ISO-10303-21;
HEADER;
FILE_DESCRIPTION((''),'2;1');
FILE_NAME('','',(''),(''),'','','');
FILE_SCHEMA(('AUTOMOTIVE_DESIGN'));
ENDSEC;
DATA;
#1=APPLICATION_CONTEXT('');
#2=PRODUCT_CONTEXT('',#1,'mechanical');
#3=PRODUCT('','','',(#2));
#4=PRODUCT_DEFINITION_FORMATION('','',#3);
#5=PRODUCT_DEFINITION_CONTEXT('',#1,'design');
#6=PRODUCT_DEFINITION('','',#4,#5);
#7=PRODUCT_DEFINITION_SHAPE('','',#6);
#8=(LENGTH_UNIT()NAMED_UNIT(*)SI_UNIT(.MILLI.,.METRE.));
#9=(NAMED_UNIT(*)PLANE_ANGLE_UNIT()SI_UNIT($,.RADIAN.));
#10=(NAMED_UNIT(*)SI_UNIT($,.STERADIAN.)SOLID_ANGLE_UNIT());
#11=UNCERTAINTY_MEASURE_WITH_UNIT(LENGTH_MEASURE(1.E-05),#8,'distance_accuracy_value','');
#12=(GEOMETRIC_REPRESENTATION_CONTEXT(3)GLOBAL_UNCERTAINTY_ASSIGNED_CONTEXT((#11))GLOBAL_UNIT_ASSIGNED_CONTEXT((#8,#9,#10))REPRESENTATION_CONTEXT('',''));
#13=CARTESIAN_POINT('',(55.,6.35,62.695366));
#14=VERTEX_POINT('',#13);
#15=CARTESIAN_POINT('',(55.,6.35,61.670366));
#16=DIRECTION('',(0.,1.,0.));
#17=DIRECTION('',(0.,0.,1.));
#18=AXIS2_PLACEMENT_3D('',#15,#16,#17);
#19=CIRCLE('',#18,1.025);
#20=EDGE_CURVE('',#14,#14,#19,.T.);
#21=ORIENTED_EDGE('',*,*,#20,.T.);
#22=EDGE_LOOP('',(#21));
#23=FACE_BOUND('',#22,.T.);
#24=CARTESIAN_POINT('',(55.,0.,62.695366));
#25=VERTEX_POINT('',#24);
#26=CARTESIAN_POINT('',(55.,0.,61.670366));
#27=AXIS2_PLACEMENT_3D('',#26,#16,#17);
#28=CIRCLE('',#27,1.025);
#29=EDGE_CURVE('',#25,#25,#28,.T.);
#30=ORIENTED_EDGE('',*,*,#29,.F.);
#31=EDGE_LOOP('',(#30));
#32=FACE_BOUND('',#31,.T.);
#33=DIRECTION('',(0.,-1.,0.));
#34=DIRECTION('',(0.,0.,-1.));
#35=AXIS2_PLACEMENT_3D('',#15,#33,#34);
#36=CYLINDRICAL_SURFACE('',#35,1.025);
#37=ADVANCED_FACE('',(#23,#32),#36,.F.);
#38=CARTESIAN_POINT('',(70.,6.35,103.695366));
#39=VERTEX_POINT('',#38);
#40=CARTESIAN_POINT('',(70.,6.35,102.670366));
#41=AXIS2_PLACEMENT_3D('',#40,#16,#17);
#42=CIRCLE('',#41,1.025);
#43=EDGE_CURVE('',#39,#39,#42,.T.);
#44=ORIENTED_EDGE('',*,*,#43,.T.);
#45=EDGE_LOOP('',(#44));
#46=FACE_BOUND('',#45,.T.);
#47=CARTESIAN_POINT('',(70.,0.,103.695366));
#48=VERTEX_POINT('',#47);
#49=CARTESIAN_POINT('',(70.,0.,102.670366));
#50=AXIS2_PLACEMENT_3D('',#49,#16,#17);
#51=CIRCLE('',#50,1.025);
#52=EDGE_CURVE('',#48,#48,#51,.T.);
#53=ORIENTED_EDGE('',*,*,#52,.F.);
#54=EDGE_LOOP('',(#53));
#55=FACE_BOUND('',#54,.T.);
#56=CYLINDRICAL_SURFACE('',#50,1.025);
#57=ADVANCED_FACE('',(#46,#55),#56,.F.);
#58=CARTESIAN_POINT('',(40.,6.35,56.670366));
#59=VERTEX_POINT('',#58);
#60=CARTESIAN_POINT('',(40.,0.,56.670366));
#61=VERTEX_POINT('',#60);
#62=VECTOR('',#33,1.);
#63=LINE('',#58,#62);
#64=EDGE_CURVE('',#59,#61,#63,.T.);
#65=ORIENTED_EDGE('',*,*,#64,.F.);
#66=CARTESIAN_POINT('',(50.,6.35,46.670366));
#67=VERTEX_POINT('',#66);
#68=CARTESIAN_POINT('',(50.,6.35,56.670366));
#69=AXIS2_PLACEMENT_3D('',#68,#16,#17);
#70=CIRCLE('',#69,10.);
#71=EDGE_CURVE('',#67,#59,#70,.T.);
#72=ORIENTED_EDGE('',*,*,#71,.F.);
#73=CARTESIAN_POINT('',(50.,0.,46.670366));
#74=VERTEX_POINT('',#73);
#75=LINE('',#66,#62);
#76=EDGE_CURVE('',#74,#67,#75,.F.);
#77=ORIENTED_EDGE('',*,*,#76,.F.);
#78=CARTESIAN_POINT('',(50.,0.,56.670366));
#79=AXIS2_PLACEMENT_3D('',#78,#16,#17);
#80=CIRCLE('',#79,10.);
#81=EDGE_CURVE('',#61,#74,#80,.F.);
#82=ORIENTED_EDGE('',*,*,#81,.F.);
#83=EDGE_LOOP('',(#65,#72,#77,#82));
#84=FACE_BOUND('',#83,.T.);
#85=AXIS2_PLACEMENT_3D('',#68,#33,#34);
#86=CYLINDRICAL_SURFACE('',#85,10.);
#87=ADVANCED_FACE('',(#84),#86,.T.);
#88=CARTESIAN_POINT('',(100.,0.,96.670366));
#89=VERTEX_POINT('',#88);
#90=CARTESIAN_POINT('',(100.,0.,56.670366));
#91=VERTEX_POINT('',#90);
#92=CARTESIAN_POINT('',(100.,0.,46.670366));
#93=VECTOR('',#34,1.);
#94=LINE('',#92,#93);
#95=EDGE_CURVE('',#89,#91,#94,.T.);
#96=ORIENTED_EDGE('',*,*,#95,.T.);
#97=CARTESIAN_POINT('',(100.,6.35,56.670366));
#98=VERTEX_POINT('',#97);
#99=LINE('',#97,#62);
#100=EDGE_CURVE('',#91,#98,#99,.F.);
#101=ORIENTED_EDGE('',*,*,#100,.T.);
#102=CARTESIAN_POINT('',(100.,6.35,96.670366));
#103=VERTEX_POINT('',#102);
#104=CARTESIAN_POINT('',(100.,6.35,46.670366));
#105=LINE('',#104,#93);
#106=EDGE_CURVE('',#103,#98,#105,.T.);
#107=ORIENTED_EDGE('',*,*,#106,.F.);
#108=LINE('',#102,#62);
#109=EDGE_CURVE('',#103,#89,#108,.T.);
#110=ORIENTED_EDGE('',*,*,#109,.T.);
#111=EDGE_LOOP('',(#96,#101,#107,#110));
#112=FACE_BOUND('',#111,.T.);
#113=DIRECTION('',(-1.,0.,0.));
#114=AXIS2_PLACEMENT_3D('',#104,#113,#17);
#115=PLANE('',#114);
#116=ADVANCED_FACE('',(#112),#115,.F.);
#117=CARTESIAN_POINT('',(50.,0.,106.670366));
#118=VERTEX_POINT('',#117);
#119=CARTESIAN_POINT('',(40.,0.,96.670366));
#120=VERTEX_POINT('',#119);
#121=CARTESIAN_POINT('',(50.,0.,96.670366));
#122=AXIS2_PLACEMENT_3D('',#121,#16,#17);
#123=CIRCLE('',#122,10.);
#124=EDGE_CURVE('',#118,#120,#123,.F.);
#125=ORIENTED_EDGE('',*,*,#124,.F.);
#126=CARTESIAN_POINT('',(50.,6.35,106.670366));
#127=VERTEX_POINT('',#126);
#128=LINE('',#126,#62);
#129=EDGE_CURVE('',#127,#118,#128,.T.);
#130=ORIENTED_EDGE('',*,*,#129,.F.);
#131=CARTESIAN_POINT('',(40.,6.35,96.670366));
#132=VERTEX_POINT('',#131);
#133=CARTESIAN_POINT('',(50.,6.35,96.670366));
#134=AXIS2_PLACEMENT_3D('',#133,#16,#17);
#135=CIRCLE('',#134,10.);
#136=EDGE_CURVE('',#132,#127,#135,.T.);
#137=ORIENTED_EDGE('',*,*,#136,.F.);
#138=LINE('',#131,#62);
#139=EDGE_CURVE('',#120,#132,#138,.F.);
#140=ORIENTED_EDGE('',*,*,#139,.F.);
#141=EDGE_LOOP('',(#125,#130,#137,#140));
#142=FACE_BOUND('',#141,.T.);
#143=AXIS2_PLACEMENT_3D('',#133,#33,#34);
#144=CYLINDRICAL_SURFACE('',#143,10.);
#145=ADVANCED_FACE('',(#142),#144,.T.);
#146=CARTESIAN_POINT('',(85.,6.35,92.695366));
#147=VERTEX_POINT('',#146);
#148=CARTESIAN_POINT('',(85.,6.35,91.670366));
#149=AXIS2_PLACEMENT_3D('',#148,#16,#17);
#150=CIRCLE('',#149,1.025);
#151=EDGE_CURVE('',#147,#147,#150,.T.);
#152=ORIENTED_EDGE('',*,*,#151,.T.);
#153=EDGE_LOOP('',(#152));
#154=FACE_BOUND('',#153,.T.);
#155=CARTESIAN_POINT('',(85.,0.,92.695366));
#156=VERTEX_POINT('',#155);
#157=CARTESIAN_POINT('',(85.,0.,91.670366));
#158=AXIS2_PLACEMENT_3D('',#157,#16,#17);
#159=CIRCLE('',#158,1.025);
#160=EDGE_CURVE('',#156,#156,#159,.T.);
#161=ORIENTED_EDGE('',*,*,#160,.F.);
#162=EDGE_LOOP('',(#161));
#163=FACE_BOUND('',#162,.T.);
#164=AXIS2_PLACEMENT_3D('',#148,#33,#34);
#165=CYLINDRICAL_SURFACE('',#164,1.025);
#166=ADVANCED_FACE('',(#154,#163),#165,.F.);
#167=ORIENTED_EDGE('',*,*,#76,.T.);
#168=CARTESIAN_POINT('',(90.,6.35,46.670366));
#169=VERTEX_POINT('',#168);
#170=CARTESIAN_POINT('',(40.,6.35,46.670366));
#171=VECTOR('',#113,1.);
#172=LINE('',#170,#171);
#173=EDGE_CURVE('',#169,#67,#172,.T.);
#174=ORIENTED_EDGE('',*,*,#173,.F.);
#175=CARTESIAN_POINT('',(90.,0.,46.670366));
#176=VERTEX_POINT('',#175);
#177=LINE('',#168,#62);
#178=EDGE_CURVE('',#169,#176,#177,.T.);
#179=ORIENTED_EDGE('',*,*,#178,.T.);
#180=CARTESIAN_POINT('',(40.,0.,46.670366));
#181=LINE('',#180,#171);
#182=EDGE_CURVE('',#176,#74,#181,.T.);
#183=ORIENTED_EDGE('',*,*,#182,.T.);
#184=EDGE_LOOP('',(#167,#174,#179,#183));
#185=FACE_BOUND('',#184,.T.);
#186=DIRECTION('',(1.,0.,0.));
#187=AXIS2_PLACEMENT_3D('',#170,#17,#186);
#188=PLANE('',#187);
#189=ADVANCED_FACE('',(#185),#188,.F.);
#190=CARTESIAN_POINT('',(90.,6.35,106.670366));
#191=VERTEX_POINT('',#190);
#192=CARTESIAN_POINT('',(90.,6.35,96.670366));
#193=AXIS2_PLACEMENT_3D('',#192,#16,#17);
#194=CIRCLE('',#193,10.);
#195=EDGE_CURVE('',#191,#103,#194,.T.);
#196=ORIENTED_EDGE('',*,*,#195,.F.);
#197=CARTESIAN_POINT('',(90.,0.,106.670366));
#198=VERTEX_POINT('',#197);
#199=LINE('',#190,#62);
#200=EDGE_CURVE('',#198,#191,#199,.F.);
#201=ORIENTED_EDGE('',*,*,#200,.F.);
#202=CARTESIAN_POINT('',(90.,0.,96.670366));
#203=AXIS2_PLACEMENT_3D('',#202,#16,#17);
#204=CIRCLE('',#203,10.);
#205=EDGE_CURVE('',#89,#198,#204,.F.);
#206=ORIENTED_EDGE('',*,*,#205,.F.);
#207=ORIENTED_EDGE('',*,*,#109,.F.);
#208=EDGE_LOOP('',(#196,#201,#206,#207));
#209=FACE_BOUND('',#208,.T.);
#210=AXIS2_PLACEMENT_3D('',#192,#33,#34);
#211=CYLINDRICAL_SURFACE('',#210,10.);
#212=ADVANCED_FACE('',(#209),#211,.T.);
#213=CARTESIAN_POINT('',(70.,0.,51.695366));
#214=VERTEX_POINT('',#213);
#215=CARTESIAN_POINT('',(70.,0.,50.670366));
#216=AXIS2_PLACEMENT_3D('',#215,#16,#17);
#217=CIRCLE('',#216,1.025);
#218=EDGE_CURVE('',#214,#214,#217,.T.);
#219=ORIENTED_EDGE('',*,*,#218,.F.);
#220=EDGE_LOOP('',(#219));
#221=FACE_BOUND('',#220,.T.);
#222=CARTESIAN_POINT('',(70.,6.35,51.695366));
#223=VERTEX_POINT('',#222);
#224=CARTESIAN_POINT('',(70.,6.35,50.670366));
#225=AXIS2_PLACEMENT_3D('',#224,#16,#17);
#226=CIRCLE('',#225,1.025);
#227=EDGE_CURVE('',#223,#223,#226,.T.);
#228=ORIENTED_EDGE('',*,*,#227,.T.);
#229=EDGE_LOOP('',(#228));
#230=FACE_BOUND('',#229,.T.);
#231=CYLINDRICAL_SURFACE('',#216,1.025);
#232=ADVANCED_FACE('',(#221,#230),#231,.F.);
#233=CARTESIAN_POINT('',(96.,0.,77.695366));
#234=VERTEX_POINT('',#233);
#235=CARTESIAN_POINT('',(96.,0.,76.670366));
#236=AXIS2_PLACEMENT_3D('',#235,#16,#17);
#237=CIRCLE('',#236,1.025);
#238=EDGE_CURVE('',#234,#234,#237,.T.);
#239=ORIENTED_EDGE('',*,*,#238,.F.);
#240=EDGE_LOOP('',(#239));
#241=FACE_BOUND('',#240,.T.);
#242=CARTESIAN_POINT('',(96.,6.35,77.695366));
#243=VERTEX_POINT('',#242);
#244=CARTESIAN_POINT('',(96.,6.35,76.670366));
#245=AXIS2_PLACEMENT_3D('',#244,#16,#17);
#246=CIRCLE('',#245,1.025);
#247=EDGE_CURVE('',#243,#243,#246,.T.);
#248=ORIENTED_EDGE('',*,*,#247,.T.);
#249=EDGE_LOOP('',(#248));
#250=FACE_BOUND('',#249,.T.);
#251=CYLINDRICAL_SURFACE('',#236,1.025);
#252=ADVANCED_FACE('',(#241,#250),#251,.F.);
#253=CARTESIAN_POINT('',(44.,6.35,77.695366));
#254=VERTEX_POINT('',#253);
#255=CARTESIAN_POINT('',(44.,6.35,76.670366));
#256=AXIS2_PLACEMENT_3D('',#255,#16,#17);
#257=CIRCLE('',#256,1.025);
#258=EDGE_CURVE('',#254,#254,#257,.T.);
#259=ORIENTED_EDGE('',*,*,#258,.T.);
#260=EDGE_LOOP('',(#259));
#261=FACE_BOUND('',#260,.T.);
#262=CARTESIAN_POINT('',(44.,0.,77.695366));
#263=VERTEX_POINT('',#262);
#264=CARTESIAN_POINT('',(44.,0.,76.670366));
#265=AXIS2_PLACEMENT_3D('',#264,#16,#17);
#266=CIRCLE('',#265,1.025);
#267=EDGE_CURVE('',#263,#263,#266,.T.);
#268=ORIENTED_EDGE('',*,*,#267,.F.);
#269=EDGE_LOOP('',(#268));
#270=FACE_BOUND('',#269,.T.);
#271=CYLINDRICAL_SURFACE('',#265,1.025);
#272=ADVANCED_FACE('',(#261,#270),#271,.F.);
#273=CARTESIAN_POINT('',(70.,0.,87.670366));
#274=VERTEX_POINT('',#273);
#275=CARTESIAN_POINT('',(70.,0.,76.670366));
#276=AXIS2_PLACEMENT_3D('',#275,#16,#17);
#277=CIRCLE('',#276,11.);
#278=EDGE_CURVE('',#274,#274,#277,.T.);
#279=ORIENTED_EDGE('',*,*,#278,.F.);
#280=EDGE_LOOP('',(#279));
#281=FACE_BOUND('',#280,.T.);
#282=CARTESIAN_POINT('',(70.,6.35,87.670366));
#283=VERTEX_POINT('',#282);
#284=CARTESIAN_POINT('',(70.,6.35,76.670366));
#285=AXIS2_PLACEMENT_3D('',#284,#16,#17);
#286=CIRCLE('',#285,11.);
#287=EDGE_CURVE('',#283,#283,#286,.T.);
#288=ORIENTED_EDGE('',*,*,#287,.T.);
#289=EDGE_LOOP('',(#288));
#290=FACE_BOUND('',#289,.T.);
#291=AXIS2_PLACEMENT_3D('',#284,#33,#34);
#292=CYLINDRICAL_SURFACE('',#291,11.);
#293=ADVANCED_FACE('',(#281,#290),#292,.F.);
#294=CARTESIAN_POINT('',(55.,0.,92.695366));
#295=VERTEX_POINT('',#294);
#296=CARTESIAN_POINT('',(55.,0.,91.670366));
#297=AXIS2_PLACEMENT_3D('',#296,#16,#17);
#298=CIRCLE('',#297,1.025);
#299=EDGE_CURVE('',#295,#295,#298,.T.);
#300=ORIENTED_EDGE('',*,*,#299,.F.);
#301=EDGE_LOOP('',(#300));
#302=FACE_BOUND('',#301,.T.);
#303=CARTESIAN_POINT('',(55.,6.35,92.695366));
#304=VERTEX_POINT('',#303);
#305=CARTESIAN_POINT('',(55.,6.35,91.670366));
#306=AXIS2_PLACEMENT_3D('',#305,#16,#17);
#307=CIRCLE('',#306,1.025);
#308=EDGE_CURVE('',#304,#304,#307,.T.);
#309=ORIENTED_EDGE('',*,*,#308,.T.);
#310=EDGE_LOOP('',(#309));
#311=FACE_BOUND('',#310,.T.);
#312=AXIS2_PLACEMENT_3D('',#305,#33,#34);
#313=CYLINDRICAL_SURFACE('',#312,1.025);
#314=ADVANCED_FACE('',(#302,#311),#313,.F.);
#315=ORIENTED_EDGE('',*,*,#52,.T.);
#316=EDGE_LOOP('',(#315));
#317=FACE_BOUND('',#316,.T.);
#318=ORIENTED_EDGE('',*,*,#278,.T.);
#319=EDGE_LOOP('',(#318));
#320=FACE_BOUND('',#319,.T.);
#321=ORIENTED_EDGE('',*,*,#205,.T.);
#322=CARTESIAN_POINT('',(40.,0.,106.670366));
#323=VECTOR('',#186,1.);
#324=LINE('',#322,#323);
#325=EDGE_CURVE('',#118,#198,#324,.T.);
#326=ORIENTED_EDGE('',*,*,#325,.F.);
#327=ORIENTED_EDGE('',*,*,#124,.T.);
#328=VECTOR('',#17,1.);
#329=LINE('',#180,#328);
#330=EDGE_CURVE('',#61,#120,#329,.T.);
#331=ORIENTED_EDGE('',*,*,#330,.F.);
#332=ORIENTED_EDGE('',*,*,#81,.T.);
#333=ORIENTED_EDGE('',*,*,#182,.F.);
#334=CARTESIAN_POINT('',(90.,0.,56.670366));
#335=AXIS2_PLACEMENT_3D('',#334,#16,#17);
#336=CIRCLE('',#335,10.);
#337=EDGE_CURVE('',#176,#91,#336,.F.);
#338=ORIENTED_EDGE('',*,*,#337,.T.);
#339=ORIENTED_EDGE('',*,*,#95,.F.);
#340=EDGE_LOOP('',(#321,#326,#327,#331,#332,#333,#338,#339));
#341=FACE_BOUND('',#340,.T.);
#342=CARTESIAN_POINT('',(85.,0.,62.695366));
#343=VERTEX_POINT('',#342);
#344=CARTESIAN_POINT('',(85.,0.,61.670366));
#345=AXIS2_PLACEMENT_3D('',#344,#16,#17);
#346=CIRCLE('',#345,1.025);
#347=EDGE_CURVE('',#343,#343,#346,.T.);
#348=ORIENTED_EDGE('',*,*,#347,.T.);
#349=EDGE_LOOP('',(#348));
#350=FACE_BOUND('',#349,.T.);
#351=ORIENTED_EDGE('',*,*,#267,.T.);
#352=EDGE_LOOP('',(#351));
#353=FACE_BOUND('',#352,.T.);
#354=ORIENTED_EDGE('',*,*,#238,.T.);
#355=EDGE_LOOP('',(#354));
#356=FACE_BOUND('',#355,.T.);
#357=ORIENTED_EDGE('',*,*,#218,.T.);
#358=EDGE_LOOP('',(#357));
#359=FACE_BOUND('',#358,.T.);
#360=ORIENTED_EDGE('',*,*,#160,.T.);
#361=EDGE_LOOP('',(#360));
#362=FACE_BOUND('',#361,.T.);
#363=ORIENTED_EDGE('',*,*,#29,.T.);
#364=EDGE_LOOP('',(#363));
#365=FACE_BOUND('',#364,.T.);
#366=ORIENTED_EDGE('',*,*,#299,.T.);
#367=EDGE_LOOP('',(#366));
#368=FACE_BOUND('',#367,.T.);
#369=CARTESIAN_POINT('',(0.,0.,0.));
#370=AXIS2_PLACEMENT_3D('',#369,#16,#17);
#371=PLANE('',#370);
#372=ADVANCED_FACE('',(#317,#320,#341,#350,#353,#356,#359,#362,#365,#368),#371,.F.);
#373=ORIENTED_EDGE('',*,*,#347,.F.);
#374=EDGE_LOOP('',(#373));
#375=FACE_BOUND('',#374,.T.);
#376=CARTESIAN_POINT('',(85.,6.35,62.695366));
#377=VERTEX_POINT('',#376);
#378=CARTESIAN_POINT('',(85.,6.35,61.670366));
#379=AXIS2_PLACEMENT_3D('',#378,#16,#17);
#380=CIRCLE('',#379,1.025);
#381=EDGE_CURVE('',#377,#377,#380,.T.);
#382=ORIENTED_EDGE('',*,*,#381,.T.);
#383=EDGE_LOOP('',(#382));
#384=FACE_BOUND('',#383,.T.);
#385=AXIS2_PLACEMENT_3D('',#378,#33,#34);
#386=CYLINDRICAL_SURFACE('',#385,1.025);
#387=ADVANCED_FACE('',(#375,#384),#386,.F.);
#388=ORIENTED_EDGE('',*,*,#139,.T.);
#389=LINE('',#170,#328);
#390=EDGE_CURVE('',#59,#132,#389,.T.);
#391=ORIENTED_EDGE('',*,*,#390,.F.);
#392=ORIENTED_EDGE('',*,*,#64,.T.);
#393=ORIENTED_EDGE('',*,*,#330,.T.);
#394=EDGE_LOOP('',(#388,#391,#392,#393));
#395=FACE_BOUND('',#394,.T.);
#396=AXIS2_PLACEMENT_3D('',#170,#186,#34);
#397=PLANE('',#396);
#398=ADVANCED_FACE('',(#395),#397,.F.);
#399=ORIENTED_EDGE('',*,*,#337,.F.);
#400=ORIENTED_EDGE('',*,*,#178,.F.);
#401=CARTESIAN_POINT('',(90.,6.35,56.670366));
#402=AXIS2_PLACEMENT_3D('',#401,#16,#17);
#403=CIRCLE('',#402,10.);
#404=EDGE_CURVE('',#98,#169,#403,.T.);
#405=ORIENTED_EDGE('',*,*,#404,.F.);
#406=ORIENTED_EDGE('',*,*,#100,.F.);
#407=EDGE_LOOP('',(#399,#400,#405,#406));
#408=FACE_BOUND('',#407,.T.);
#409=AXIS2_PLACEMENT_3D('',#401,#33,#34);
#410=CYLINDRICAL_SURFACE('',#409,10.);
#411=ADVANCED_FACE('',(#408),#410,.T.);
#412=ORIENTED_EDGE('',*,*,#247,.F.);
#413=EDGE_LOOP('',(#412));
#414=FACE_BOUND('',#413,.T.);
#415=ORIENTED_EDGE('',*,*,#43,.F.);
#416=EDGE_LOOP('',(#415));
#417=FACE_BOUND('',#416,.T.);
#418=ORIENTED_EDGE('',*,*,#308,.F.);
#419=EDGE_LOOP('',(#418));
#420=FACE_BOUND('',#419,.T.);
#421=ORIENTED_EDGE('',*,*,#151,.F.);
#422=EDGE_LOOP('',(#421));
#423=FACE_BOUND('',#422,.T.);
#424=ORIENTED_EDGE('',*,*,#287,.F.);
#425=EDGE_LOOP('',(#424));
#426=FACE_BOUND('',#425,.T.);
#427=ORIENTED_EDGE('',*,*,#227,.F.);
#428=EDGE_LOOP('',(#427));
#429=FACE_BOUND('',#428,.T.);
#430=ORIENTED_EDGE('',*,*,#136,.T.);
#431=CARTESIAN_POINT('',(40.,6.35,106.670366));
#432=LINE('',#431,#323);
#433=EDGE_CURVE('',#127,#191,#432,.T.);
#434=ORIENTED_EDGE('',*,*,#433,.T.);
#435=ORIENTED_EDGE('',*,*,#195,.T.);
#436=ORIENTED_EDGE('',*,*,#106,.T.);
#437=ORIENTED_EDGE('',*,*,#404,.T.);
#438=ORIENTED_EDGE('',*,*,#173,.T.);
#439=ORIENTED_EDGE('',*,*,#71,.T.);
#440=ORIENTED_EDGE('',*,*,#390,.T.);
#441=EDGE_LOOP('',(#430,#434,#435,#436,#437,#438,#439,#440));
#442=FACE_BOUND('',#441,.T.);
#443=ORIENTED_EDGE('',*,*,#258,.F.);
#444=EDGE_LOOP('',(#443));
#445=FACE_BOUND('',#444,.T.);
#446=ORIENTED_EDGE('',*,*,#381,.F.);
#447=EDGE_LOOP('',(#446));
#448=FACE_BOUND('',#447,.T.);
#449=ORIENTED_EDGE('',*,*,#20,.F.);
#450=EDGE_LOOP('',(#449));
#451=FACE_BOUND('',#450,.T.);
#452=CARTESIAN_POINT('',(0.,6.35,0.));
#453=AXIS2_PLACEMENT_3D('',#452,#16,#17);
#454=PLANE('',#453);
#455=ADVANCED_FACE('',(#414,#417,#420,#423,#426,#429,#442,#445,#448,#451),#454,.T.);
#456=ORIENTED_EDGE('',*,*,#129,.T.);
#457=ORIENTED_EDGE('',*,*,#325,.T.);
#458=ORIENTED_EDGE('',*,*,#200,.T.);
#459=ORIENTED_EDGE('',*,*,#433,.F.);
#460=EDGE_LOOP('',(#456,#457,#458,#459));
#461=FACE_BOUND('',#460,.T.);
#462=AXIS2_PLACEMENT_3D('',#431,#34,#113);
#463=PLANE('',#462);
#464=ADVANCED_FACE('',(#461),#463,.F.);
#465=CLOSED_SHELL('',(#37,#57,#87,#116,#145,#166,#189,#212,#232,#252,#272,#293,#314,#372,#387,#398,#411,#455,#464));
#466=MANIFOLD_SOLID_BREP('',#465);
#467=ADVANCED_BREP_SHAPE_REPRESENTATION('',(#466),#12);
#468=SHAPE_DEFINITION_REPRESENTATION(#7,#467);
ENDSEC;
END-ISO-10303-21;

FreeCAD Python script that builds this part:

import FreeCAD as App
import Part
import Sketcher


def edges_at(feature, points):
    """Names of the edges that pass closest to the given points."""
    edges = feature.Shape.Edges
    near = lambda p: min(range(len(edges)), key=lambda i: edges[i].distToShape(Part.Vertex(*p))[0])
    return sorted({f"Edge{near(p) + 1}" for p in points})

doc = App.newDocument("Part")
body = doc.addObject("PartDesign::Body", "Body")

sketch1 = body.newObject("Sketcher::SketchObject", "Sketch")
sketch1.AttachmentSupport = (doc.getObject("XZ_Plane"), [""])
sketch1.MapMode = "FlatFace"
sketch1.addGeometry([
    Part.LineSegment(App.Vector(40, 46.670366, 0), App.Vector(40, 106.670366, 0)),
    Part.LineSegment(App.Vector(40, 106.670366, 0), App.Vector(100, 106.670366, 0)),
    Part.LineSegment(App.Vector(100, 106.670366, 0), App.Vector(100, 46.670366, 0)),
    Part.LineSegment(App.Vector(100, 46.670366, 0), App.Vector(40, 46.670366, 0)),
    Part.Circle(App.Vector(55, 91.670366, 0), App.Vector(0, 0, 1), 1.025),
    Part.Circle(App.Vector(85, 91.670366, 0), App.Vector(0, 0, 1), 1.025),
    Part.Circle(App.Vector(55, 61.670366, 0), App.Vector(0, 0, 1), 1.025),
    Part.Circle(App.Vector(70, 76.670366, 0), App.Vector(0, 0, 1), 11),
    Part.Circle(App.Vector(85, 61.670366, 0), App.Vector(0, 0, 1), 1.025),
], False)
sketch1.addConstraint([
    Sketcher.Constraint("Coincident", 0, 2, 1, 1),
    Sketcher.Constraint("Coincident", 1, 2, 2, 1),
    Sketcher.Constraint("Coincident", 2, 2, 3, 1),
    Sketcher.Constraint("Coincident", 3, 2, 0, 1),
    Sketcher.Constraint("Vertical", 0),
    Sketcher.Constraint("Horizontal", 1),
    Sketcher.Constraint("Vertical", 2),
    Sketcher.Constraint("Horizontal", 3),
    Sketcher.Constraint("Equal", 4, 5),
    Sketcher.Constraint("Equal", 5, 6),
    Sketcher.Constraint("Equal", 6, 8),
    Sketcher.Constraint("Horizontal", 4, 3, 5, 3),
    Sketcher.Constraint("Horizontal", 6, 3, 8, 3),
    Sketcher.Constraint("Vertical", 4, 3, 6, 3),
    Sketcher.Constraint("Vertical", 5, 3, 8, 3),
    Sketcher.Constraint("Equal", 3, 0),
    Sketcher.Constraint("Diameter", 7, 22.0),
    Sketcher.Constraint("Diameter", 4, 2.05),
    Sketcher.Constraint("DistanceX", 1, 1, 1, 2, 60.0),
    Sketcher.Constraint("DistanceX", -1, 1, 4, 3, 55.0),
    Sketcher.Constraint("DistanceX", -1, 1, 5, 3, 85.0),
    Sketcher.Constraint("DistanceX", -1, 1, 7, 3, 70.0),
    Sketcher.Constraint("DistanceX", -1, 1, 0, 2, 40.0),
    Sketcher.Constraint("DistanceY", 6, 3, 4, 3, 30.0),
    Sketcher.Constraint("DistanceY", 6, 3, 7, 3, 15.0),
    Sketcher.Constraint("DistanceY", 4, 3, 0, 2, 15.0),
    Sketcher.Constraint("DistanceY", -1, 1, 4, 3, 91.670366),
])
pad1 = body.newObject("PartDesign::Pad", "Pad")
pad1.Profile = sketch1
pad1.Length = 6.35
pad1.Reversed = True
doc.recompute()

fillet = body.newObject("PartDesign::Fillet", "Fillet")
fillet.Base = (pad1, edges_at(pad1, [
    (40, 3.175, 46.67),
    (100, 3.175, 46.67),
    (100, 3.175, 106.67),
    (40, 3.175, 106.67),
]))
fillet.Radius = 10

sketch2 = body.newObject("Sketcher::SketchObject", "Sketch001")
sketch2.AttachmentSupport = (doc.getObject("XZ_Plane"), [""])
sketch2.MapMode = "FlatFace"
sketch2.AttachmentOffset = App.Placement(App.Vector(0, 0, -6.35), App.Rotation())
sketch2.addGeometry([
    Part.Circle(App.Vector(44, 76.670366, 0), App.Vector(0, 0, 1), 1.025),
    Part.Circle(App.Vector(96, 76.670366, 0), App.Vector(0, 0, 1), 1.025),
    Part.Circle(App.Vector(70, 50.670366, 0), App.Vector(0, 0, 1), 1.025),
    Part.Circle(App.Vector(70, 102.670366, 0), App.Vector(0, 0, 1), 1.025),
], False)
sketch2.addConstraint([
    Sketcher.Constraint("Equal", 0, 1),
    Sketcher.Constraint("Equal", 1, 2),
    Sketcher.Constraint("Equal", 2, 3),
    Sketcher.Constraint("Horizontal", 0, 3, 1, 3),
    Sketcher.Constraint("Vertical", 2, 3, 3, 3),
    Sketcher.Constraint("Diameter", 0, 2.05),
    Sketcher.Constraint("DistanceX", -1, 1, 0, 3, 44.0),
    Sketcher.Constraint("DistanceX", -1, 1, 1, 3, 96.0),
    Sketcher.Constraint("DistanceX", -1, 1, 2, 3, 70.0),
    Sketcher.Constraint("DistanceY", 2, 3, 0, 3, 26.0),
    Sketcher.Constraint("DistanceY", 0, 3, 3, 3, 26.0),
    Sketcher.Constraint("DistanceY", -1, 1, 0, 3, 76.670366),
])
pocket1 = body.newObject("PartDesign::Pocket", "Pocket")
pocket1.Profile = sketch2
pocket1.Type = "ThroughAll"
pocket1.Reversed = True

doc.recompute()
